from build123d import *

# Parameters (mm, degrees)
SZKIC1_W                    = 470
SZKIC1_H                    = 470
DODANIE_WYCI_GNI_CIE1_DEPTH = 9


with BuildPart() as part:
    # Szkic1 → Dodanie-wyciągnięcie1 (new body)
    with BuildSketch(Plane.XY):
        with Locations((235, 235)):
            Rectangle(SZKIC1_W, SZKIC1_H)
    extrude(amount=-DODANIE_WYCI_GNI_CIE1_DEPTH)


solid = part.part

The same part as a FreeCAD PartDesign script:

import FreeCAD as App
import Part
import Sketcher
from FreeCAD import Vector


def add_polygon(sketch, points):
    """Adds a closed chain of lines whose ends are joined by coincident constraints."""
    first, n = sketch.GeometryCount, len(points)
    for a, b in zip(points, points[1:] + points[:1]):
        sketch.addGeometry(Part.LineSegment(App.Vector(*a, 0), App.Vector(*b, 0)), False)
    for i in range(n):
        sketch.addConstraint(Sketcher.Constraint("Coincident", first + i, 2, first + (i + 1) % n, 1))

doc = App.newDocument("Part")
body = doc.addObject("PartDesign::Body", "Body")

sketch1 = body.newObject("Sketcher::SketchObject", "Sketch")
sketch1.AttachmentSupport = (doc.getObject("XY_Plane"), [""])
sketch1.MapMode = "FlatFace"
add_polygon(sketch1, [(0, 470), (0, 0), (470, 0), (470, 470)])
sketch1.addConstraint([
    Sketcher.Constraint("Vertical", 0),
    Sketcher.Constraint("Horizontal", 1),
    Sketcher.Constraint("Vertical", 2),
    Sketcher.Constraint("Horizontal", 3),
    Sketcher.Constraint("Coincident", 0, 2, -1, 1),
    Sketcher.Constraint("Equal", 3, 0),
    Sketcher.Constraint("DistanceX", 1, 1, 1, 2, 470.0),
])
pad1 = body.newObject("PartDesign::Pad", "Pad")
pad1.Profile = sketch1
pad1.Length = 9
pad1.Reversed = True

doc.recompute()
